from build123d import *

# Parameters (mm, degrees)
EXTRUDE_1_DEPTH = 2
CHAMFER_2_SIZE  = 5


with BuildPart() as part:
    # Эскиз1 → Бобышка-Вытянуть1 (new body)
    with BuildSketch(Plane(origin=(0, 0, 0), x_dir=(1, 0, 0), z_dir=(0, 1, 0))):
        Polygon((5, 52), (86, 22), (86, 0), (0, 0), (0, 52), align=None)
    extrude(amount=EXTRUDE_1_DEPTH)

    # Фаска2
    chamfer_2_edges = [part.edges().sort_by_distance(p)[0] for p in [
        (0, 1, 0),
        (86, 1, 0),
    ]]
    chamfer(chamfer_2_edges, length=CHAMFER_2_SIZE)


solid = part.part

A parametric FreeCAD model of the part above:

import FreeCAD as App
import Part
import Sketcher

V = App.Vector


def edges_at(feature, points):
    """Names of the edges that pass closest to the given points."""
    edges = feature.Shape.Edges
    near = lambda p: min(range(len(edges)), key=lambda i: edges[i].distToShape(Part.Vertex(*p))[0])
    return sorted({f"Edge{near(p) + 1}" for p in points})


def add_polygon(sketch, points):
    """Adds a closed chain of lines whose ends are joined by coincident constraints."""
    first, n = sketch.GeometryCount, len(points)
    for a, b in zip(points, points[1:] + points[:1]):
        sketch.addGeometry(Part.LineSegment(App.Vector(*a, 0), App.Vector(*b, 0)), False)
    for i in range(n):
        sketch.addConstraint(Sketcher.Constraint("Coincident", first + i, 2, first + (i + 1) % n, 1))

doc = App.newDocument("Part")
body = doc.addObject("PartDesign::Body", "Body")

# Sketch on XZ plane
sketch1 = body.newObject("Sketcher::SketchObject", "Sketch")
sketch1.AttachmentSupport = (doc.getObject("XZ_Plane"), [""])
sketch1.MapMode = "FlatFace"
add_polygon(sketch1, [(86, -22), (5, -52), (0, -52), (0, 0), (86, 0)])  # lines 0-4
sketch1.addConstraint(Sketcher.Constraint("Horizontal", 1))
sketch1.addConstraint(Sketcher.Constraint("Vertical", 2))
sketch1.addConstraint(Sketcher.Constraint("Horizontal", 3))
sketch1.addConstraint(Sketcher.Constraint("Vertical", 4))
sketch1.addConstraint(Sketcher.Constraint("Coincident", 2, 2, -1, 1))
sketch1.addConstraint(Sketcher.Constraint("DistanceX", 1, 2, 1, 1, 5.0))
sketch1.addConstraint(Sketcher.Constraint("DistanceX", 3, 1, 3, 2, 86.0))
sketch1.addConstraint(Sketcher.Constraint("DistanceY", 2, 1, 2, 2, 52.0))
sketch1.addConstraint(Sketcher.Constraint("DistanceY", 4, 2, 4, 1, 22.0))
pad1 = body.newObject("PartDesign::Pad", "Pad")
pad1.Profile = sketch1
pad1.Length = 2
pad1.Reversed = True
doc.recompute()

chamfer = body.newObject("PartDesign::Chamfer", "Chamfer")
chamfer.Base = (pad1, edges_at(pad1, [(0, 1, 0), (86, 1, 0)]))
chamfer.Size = 5

doc.recompute()
